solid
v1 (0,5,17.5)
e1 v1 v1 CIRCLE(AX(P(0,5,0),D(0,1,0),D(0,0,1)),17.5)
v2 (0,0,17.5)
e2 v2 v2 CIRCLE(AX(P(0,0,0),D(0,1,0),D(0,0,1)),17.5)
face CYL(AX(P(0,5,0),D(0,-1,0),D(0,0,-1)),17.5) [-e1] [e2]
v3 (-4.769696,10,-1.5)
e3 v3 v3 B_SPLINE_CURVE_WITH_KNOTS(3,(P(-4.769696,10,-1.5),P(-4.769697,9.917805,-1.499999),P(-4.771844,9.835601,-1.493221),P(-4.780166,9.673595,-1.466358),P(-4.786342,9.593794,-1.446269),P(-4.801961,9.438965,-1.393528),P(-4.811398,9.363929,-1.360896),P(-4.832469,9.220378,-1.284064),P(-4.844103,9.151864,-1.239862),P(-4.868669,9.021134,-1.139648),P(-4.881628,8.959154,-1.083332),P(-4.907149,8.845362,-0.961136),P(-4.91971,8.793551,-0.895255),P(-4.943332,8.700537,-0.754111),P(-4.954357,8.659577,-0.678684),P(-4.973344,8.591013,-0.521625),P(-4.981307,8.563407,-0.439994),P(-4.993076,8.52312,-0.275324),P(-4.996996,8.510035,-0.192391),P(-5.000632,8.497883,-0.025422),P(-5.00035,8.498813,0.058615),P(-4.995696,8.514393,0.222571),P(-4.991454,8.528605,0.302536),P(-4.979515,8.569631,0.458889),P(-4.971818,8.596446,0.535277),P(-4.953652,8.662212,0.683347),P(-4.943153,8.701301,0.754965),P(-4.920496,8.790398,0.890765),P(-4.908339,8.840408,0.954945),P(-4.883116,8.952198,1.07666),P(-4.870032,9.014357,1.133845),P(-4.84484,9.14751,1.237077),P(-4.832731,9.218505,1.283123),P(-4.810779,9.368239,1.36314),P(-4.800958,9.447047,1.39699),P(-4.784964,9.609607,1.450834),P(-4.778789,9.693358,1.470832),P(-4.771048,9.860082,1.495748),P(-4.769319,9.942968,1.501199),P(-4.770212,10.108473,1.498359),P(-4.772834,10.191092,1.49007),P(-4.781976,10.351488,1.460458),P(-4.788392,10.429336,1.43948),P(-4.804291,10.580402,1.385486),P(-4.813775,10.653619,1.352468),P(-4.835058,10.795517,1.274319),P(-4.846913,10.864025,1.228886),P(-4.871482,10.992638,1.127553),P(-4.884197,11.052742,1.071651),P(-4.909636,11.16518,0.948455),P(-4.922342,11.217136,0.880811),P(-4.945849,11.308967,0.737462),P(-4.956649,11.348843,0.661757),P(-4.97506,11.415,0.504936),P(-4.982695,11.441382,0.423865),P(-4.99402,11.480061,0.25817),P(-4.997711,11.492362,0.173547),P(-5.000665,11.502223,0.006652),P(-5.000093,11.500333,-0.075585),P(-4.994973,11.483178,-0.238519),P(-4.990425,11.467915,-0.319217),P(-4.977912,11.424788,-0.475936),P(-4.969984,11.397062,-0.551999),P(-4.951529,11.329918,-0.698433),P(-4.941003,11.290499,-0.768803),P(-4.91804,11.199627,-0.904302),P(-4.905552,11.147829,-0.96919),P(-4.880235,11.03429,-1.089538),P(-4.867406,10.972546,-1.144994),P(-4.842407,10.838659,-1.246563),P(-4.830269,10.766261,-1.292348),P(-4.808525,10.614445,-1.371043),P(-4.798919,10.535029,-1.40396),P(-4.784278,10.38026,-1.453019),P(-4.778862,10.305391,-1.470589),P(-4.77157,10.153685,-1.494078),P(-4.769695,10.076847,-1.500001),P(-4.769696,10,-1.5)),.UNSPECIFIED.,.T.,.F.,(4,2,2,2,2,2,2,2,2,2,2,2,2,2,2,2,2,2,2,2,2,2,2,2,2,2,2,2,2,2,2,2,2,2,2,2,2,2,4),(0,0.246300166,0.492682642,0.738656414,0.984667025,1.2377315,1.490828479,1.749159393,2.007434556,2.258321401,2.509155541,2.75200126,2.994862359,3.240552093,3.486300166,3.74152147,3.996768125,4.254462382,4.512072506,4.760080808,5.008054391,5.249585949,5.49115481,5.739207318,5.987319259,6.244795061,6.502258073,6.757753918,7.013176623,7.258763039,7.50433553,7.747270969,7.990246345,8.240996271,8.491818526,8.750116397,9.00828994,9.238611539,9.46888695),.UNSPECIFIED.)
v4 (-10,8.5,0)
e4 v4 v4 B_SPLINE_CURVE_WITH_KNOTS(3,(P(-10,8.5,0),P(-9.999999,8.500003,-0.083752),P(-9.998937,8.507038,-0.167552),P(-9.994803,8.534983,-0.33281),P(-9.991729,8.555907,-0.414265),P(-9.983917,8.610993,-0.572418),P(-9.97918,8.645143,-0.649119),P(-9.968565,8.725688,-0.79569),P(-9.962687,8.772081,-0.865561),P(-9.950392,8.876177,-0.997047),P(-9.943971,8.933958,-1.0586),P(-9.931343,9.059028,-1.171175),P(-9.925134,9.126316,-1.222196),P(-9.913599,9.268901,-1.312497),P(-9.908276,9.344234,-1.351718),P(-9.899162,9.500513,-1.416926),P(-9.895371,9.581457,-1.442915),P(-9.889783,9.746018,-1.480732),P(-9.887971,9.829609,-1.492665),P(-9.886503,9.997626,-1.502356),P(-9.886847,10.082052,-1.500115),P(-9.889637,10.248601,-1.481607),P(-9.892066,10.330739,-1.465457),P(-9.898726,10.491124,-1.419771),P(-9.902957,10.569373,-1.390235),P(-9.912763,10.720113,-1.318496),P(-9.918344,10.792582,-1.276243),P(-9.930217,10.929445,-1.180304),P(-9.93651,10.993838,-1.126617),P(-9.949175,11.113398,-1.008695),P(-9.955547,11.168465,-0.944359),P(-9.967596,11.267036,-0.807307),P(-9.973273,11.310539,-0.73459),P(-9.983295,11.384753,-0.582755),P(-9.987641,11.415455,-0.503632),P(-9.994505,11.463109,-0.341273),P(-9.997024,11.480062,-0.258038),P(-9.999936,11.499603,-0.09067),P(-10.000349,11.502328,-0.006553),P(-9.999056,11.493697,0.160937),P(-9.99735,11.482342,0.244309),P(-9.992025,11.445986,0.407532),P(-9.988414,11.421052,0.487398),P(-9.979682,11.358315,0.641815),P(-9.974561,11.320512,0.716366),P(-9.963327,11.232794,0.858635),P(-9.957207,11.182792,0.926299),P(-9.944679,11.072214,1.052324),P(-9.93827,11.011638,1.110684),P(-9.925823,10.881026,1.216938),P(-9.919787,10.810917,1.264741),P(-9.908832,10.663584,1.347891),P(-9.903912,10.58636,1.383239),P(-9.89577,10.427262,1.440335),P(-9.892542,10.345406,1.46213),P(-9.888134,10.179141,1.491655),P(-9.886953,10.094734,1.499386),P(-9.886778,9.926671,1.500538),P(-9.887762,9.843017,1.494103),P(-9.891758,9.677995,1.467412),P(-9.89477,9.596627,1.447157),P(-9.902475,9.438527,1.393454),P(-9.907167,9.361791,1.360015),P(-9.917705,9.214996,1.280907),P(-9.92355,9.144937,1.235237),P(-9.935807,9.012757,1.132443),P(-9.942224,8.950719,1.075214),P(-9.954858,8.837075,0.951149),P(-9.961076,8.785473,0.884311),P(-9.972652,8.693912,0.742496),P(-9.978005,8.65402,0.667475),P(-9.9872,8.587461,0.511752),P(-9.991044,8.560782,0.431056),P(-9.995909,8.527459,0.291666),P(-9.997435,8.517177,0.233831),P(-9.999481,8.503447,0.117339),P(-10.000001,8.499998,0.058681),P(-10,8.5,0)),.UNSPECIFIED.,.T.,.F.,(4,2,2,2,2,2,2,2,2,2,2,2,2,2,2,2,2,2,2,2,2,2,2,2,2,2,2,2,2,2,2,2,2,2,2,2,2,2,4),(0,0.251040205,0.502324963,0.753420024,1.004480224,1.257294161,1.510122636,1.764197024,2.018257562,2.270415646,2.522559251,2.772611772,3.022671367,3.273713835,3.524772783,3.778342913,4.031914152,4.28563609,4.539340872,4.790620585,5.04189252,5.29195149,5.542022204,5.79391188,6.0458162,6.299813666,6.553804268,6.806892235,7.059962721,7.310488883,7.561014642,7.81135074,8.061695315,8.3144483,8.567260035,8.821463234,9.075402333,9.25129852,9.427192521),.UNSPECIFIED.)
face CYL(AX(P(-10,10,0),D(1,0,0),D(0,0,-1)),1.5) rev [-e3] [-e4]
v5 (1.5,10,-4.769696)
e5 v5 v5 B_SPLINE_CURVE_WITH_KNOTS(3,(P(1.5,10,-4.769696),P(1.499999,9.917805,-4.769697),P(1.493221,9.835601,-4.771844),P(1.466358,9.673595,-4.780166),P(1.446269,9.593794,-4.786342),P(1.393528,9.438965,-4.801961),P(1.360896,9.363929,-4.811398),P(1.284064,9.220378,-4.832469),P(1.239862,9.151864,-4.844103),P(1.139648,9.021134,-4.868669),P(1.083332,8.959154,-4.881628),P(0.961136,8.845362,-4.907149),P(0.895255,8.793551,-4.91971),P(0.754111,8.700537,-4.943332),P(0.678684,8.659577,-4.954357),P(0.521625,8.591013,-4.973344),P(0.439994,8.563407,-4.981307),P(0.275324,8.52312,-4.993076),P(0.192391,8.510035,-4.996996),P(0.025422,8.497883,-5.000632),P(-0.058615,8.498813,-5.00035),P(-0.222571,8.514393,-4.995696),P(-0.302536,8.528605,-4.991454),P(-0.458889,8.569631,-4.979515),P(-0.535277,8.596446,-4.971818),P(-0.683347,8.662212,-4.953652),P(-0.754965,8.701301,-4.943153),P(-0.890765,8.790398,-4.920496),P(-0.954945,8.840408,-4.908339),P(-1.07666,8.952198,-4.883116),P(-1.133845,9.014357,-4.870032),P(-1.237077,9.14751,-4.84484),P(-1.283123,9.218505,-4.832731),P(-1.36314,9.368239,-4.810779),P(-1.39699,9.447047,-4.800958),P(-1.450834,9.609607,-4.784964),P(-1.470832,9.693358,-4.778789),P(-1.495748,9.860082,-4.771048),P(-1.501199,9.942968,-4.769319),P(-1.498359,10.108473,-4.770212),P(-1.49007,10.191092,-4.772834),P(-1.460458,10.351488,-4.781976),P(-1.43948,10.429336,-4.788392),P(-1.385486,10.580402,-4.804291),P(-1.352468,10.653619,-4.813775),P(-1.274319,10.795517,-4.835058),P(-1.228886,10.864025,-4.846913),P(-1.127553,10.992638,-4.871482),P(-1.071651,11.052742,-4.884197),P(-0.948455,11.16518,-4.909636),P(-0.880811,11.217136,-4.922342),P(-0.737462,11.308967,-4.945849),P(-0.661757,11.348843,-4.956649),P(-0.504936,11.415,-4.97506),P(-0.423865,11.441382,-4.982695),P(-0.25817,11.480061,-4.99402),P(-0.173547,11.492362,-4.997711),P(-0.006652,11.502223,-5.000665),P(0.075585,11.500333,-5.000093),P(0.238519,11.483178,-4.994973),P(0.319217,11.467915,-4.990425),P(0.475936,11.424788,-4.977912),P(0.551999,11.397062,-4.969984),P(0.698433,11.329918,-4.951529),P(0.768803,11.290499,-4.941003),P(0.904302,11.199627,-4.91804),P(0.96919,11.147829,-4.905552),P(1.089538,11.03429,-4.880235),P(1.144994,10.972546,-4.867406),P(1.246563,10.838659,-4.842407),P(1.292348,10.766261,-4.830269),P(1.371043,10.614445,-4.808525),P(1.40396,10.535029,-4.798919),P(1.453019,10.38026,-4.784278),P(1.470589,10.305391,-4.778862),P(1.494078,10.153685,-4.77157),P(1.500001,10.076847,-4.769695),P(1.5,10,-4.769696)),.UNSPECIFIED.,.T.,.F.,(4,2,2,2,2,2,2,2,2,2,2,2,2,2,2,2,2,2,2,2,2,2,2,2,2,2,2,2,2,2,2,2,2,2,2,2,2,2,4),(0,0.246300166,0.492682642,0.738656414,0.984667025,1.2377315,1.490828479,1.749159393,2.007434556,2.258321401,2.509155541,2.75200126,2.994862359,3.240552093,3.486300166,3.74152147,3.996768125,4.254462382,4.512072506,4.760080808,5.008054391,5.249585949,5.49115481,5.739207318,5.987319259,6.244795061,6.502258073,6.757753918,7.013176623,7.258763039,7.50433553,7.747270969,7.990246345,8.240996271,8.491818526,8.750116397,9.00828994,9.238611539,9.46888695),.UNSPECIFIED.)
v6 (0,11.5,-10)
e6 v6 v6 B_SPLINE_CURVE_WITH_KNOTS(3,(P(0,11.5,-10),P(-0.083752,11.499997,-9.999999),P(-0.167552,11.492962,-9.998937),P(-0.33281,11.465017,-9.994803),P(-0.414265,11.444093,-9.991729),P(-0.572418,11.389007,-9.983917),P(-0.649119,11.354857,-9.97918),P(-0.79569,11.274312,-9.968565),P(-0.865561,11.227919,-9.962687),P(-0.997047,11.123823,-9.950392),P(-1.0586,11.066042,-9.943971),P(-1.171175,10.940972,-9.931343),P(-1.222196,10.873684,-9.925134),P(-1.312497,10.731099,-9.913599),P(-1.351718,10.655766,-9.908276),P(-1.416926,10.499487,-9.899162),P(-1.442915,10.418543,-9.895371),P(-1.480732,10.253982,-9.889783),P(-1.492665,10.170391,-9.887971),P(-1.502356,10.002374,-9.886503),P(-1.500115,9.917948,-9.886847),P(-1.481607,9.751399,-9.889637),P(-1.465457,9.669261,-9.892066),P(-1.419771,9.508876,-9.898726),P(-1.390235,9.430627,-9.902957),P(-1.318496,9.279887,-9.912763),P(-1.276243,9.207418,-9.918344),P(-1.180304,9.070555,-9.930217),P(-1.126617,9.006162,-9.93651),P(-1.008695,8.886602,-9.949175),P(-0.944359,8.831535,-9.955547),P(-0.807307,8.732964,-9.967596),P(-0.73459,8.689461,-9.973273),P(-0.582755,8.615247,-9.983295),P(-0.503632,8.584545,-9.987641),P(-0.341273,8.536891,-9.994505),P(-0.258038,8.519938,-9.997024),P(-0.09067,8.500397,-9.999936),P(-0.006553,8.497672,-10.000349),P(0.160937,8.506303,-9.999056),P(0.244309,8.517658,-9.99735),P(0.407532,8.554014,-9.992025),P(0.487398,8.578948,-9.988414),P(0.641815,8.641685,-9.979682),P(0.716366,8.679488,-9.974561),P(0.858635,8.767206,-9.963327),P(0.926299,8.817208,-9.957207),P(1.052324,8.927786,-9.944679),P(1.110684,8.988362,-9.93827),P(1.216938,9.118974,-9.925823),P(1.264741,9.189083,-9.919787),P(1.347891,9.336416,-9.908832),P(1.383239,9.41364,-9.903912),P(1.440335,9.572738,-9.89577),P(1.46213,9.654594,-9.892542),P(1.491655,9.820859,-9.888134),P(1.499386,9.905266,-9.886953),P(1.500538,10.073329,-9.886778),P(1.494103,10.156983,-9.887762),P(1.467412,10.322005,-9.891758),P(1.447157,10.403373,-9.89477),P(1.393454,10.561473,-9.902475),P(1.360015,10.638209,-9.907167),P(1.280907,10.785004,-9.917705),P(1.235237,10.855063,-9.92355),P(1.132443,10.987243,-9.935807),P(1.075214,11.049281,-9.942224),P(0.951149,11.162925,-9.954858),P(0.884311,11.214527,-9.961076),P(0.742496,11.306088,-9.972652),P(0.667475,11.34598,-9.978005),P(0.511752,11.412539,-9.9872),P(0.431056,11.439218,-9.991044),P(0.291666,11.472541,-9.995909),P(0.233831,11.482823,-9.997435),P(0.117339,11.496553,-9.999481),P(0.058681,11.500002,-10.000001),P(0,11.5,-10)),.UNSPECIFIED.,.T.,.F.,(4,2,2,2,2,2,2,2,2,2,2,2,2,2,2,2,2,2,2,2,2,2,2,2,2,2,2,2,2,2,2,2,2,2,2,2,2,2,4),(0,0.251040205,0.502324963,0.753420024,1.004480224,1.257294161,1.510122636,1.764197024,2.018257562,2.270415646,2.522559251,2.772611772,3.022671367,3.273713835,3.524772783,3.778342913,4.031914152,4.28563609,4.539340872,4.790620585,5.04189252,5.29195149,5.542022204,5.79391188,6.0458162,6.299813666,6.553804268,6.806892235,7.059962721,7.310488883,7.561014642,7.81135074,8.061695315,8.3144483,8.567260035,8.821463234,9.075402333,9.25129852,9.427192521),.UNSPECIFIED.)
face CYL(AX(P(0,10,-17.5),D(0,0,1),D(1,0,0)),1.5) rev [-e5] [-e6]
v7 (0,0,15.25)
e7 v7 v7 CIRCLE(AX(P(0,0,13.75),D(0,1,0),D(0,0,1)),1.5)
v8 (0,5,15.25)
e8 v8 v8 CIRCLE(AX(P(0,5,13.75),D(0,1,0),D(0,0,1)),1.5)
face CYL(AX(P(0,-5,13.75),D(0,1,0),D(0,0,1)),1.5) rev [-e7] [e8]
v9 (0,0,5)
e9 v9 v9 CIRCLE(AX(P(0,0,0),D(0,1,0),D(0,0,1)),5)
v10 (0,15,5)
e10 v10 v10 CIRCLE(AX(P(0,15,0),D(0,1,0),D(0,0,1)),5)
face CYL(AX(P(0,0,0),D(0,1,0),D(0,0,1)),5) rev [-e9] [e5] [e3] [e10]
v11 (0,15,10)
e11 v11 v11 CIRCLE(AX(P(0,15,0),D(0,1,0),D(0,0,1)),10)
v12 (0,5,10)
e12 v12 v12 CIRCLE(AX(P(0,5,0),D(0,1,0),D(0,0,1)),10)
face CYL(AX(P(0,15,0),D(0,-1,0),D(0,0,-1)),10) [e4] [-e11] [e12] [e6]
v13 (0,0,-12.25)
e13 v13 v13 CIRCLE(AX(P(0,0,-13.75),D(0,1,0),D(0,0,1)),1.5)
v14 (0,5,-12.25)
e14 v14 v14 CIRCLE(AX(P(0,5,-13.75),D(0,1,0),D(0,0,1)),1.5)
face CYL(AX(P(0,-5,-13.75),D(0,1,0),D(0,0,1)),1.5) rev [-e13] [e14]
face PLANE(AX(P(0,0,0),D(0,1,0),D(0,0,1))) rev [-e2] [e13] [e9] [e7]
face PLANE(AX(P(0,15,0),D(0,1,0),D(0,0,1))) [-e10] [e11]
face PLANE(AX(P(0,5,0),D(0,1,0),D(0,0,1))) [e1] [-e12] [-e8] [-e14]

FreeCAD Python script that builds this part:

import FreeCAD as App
import Part
import Sketcher
Q = App.Units.Quantity

doc = App.newDocument("Part")
body = doc.addObject("PartDesign::Body", "Body")

# Sketch on XZ plane
sketch1 = doc.addObject("Sketcher::SketchObject", "Sketch")
body.addObject(sketch1)
sketch1.AttachmentSupport = (doc.XZ_Plane, [""])
sketch1.MapMode = "FlatFace"
sketch1.addGeometry(Part.Circle(App.Vector(0, 0, 0), App.Vector(0, 0, 1), 18), False)
sketch1.addConstraint(Sketcher.Constraint("Coincident", 0, 3, -1, 1))
sketch1.addConstraint(Sketcher.Constraint("Diameter", 0, Q("35 mm")))
pad1 = doc.addObject("PartDesign::Pad", "Pad")
body.addObject(pad1)
pad1.Profile = sketch1
pad1.Length = 5
pad1.Reversed = True

# Sketch on XZ plane
sketch2 = doc.addObject("Sketcher::SketchObject", "Sketch001")
body.addObject(sketch2)
sketch2.AttachmentSupport = (doc.XZ_Plane, [""])
sketch2.MapMode = "FlatFace"
sketch2.AttachmentOffset = App.Placement(App.Vector(0, 0, -5), App.Rotation())
sketch2.addGeometry(Part.Circle(App.Vector(0, 0, 0), App.Vector(0, 0, 1), 10), False)
sketch2.addConstraint(Sketcher.Constraint("Coincident", 0, 3, -1, 1))
sketch2.addConstraint(Sketcher.Constraint("Diameter", 0, Q("20 mm")))
pad2 = doc.addObject("PartDesign::Pad", "Pad001")
body.addObject(pad2)
pad2.Profile = sketch2
pad2.Length = 10
pad2.Reversed = True

# Sketch on XZ plane
sketch3 = doc.addObject("Sketcher::SketchObject", "Sketch002")
body.addObject(sketch3)
sketch3.AttachmentSupport = (doc.XZ_Plane, [""])
sketch3.MapMode = "FlatFace"
sketch3.AttachmentOffset = App.Placement(App.Vector(0, 0, -15), App.Rotation())
sketch3.addGeometry(Part.Circle(App.Vector(0, 0, 0), App.Vector(0, 0, 1), 5), False)
sketch3.addConstraint(Sketcher.Constraint("Coincident", 0, 3, -1, 1))
sketch3.addConstraint(Sketcher.Constraint("Diameter", 0, Q("10 mm")))
pocket1 = doc.addObject("PartDesign::Pocket", "Pocket")
body.addObject(pocket1)
pocket1.Profile = sketch3
pocket1.Type = "ThroughAll"
pocket1.Reversed = True

# Sketch on XZ plane
sketch4 = doc.addObject("Sketcher::SketchObject", "Sketch003")
body.addObject(sketch4)
sketch4.AttachmentSupport = (doc.XZ_Plane, [""])
sketch4.MapMode = "FlatFace"
sketch4.AttachmentOffset = App.Placement(App.Vector(0, 0, -5), App.Rotation())
sketch4.addGeometry(Part.Circle(App.Vector(0, -13.8, 0), App.Vector(0, 0, 1), 1.5), False)
sketch4.addGeometry(Part.Circle(App.Vector(0, 13.8, 0), App.Vector(0, 0, 1), 1.5), False)
sketch4.addConstraint(Sketcher.Constraint("Equal", 0, 1))
sketch4.addConstraint(Sketcher.Constraint("Symmetric", 0, 3, 1, 3, -1, 1))
sketch4.addConstraint(Sketcher.Constraint("PointOnObject", 0, 3, -2))
sketch4.addConstraint(Sketcher.Constraint("Diameter", 0, Q("3 mm")))
sketch4.addConstraint(Sketcher.Constraint("DistanceY", 0, 3, 1, 3, Q("27.5 mm")))
pocket2 = doc.addObject("PartDesign::Pocket", "Pocket001")
body.addObject(pocket2)
pocket2.Profile = sketch4
pocket2.Length = 10
pocket2.Reversed = True

# Sketch on XY plane
sketch5 = doc.addObject("Sketcher::SketchObject", "Sketch004")
body.addObject(sketch5)
sketch5.AttachmentSupport = (doc.XY_Plane, [""])
sketch5.MapMode = "FlatFace"
sketch5.addGeometry(Part.Circle(App.Vector(0, 10, 0), App.Vector(0, 0, 1), 1.5), False)
sketch5.addConstraint(Sketcher.Constraint("PointOnObject", 0, 3, -2))
sketch5.addConstraint(Sketcher.Constraint("Diameter", 0, Q("3 mm")))
sketch5.addConstraint(Sketcher.Constraint("DistanceY", -1, 1, 0, 3, Q("10 mm")))
pocket3 = doc.addObject("PartDesign::Pocket", "Pocket002")
body.addObject(pocket3)
pocket3.Profile = sketch5
pocket3.Type = "ThroughAll"

# Sketch on YZ plane
sketch6 = doc.addObject("Sketcher::SketchObject", "Sketch005")
body.addObject(sketch6)
sketch6.AttachmentSupport = (doc.YZ_Plane, [""])
sketch6.MapMode = "FlatFace"
sketch6.addGeometry(Part.Circle(App.Vector(10, 0, 0), App.Vector(0, 0, 1), 1.5), False)
sketch6.addConstraint(Sketcher.Constraint("PointOnObject", 0, 3, -1))
sketch6.addConstraint(Sketcher.Constraint("Diameter", 0, Q("3 mm")))
sketch6.addConstraint(Sketcher.Constraint("DistanceX", -1, 1, 0, 3, Q("10 mm")))
pocket4 = doc.addObject("PartDesign::Pocket", "Pocket003")
body.addObject(pocket4)
pocket4.Profile = sketch6
pocket4.Length = 10

doc.recompute()
